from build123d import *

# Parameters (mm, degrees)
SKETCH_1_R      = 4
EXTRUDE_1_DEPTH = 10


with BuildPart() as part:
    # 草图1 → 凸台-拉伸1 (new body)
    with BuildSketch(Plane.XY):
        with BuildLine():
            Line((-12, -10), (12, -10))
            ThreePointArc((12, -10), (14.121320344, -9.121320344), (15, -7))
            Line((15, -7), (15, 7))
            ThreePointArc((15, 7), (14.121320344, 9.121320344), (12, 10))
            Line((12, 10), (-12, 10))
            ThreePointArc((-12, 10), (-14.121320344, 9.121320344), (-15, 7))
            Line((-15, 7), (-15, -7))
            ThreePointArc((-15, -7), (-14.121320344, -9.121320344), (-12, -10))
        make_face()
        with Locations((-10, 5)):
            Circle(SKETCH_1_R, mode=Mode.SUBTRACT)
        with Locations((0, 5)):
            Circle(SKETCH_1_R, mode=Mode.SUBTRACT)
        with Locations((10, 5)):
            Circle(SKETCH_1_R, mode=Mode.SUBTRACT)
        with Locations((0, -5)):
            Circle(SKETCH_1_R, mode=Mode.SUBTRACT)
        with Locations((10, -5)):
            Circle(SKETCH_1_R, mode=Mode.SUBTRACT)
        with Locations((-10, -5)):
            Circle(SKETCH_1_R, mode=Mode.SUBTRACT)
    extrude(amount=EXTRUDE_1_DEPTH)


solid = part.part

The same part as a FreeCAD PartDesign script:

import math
import FreeCAD as App
import Part
import Sketcher

doc = App.newDocument("Part")
body = doc.addObject("PartDesign::Body", "Body")

sketch1 = body.newObject("Sketcher::SketchObject", "Sketch")
sketch1.AttachmentSupport = (doc.getObject("XY_Plane"), [""])
sketch1.MapMode = "FlatFace"
sketch1.addGeometry(Part.LineSegment(App.Vector(-12, -10, 0), App.Vector(12, -10, 0)), False)
sketch1.addGeometry(Part.ArcOfCircle(Part.Circle(App.Vector(12, -7, 0), App.Vector(0, 0, 1), 3), math.radians(-90), math.radians(0)), False)
sketch1.addGeometry(Part.LineSegment(App.Vector(15, -7, 0), App.Vector(15, 7, 0)), False)
sketch1.addGeometry(Part.ArcOfCircle(Part.Circle(App.Vector(12, 7, 0), App.Vector(0, 0, 1), 3), math.radians(0), math.radians(90)), False)
sketch1.addGeometry(Part.LineSegment(App.Vector(12, 10, 0), App.Vector(-12, 10, 0)), False)
sketch1.addGeometry(Part.ArcOfCircle(Part.Circle(App.Vector(-12, 7, 0), App.Vector(0, 0, 1), 3), math.radians(90), math.radians(180)), False)
sketch1.addGeometry(Part.LineSegment(App.Vector(-15, 7, 0), App.Vector(-15, -7, 0)), False)
sketch1.addGeometry(Part.ArcOfCircle(Part.Circle(App.Vector(-12, -7, 0), App.Vector(0, 0, 1), 3), math.radians(180), math.radians(270)), False)
sketch1.addGeometry(Part.Circle(App.Vector(-10, -5, 0), App.Vector(0, 0, 1), 4), False)
sketch1.addGeometry(Part.Circle(App.Vector(0, -5, 0), App.Vector(0, 0, 1), 4), False)
sketch1.addGeometry(Part.Circle(App.Vector(10, -5, 0), App.Vector(0, 0, 1), 4), False)
sketch1.addGeometry(Part.Circle(App.Vector(-10, 5, 0), App.Vector(0, 0, 1), 4), False)
sketch1.addGeometry(Part.Circle(App.Vector(0, 5, 0), App.Vector(0, 0, 1), 4), False)
sketch1.addGeometry(Part.Circle(App.Vector(10, 5, 0), App.Vector(0, 0, 1), 4), False)
sketch1.addConstraint(Sketcher.Constraint("Tangent", 0, 2, 1, 1))
sketch1.addConstraint(Sketcher.Constraint("Tangent", 1, 2, 2, 1))
sketch1.addConstraint(Sketcher.Constraint("Tangent", 2, 2, 3, 1))
sketch1.addConstraint(Sketcher.Constraint("Tangent", 3, 2, 4, 1))
sketch1.addConstraint(Sketcher.Constraint("Tangent", 4, 2, 5, 1))
sketch1.addConstraint(Sketcher.Constraint("Tangent", 5, 2, 6, 1))
sketch1.addConstraint(Sketcher.Constraint("Tangent", 6, 2, 7, 1))
sketch1.addConstraint(Sketcher.Constraint("Tangent", 7, 2, 0, 1))
sketch1.addConstraint(Sketcher.Constraint("Horizontal", 0))
sketch1.addConstraint(Sketcher.Constraint("Vertical", 2))
sketch1.addConstraint(Sketcher.Constraint("Horizontal", 4))
sketch1.addConstraint(Sketcher.Constraint("Vertical", 6))
sketch1.addConstraint(Sketcher.Constraint("Equal", 1, 3))
sketch1.addConstraint(Sketcher.Constraint("Equal", 3, 5))
sketch1.addConstraint(Sketcher.Constraint("Equal", 5, 7))
sketch1.addConstraint(Sketcher.Constraint("Equal", 8, 9))
sketch1.addConstraint(Sketcher.Constraint("Equal", 9, 10))
sketch1.addConstraint(Sketcher.Constraint("Equal", 10, 11))
sketch1.addConstraint(Sketcher.Constraint("Equal", 11, 12))
sketch1.addConstraint(Sketcher.Constraint("Equal", 12, 13))
sketch1.addConstraint(Sketcher.Constraint("Symmetric", 1, 3, 5, 3, -1, 1))
sketch1.addConstraint(Sketcher.Constraint("Symmetric", 10, 3, 11, 3, -1, 1))
sketch1.addConstraint(Sketcher.Constraint("Symmetric", 9, 3, 12, 3, -1, 1))
sketch1.addConstraint(Sketcher.Constraint("Symmetric", 8, 3, 13, 3, -1, 1))
sketch1.addConstraint(Sketcher.Constraint("Symmetric", 8, 3, 10, 3, -2))
sketch1.addConstraint(Sketcher.Constraint("PointOnObject", 9, 3, -2))
sketch1.addConstraint(Sketcher.Constraint("Horizontal", 8, 3, 9, 3))
sketch1.addConstraint(Sketcher.Constraint("Diameter", 8, 8.0))
sketch1.addConstraint(Sketcher.Constraint("Radius", 1, 3.0))
sketch1.addConstraint(Sketcher.Constraint("DistanceX", 0, 1, 0, 2, 24.0))
sketch1.addConstraint(Sketcher.Constraint("DistanceY", 2, 1, 2, 2, 14.0))
sketch1.addConstraint(Sketcher.Constraint("DistanceX", 8, 3, -1, 1, 10.0))
sketch1.addConstraint(Sketcher.Constraint("DistanceY", 8, 3, -1, 1, 5.0))
pad1 = body.newObject("PartDesign::Pad", "Pad")
pad1.Profile = sketch1
pad1.Length = 10

doc.recompute()
